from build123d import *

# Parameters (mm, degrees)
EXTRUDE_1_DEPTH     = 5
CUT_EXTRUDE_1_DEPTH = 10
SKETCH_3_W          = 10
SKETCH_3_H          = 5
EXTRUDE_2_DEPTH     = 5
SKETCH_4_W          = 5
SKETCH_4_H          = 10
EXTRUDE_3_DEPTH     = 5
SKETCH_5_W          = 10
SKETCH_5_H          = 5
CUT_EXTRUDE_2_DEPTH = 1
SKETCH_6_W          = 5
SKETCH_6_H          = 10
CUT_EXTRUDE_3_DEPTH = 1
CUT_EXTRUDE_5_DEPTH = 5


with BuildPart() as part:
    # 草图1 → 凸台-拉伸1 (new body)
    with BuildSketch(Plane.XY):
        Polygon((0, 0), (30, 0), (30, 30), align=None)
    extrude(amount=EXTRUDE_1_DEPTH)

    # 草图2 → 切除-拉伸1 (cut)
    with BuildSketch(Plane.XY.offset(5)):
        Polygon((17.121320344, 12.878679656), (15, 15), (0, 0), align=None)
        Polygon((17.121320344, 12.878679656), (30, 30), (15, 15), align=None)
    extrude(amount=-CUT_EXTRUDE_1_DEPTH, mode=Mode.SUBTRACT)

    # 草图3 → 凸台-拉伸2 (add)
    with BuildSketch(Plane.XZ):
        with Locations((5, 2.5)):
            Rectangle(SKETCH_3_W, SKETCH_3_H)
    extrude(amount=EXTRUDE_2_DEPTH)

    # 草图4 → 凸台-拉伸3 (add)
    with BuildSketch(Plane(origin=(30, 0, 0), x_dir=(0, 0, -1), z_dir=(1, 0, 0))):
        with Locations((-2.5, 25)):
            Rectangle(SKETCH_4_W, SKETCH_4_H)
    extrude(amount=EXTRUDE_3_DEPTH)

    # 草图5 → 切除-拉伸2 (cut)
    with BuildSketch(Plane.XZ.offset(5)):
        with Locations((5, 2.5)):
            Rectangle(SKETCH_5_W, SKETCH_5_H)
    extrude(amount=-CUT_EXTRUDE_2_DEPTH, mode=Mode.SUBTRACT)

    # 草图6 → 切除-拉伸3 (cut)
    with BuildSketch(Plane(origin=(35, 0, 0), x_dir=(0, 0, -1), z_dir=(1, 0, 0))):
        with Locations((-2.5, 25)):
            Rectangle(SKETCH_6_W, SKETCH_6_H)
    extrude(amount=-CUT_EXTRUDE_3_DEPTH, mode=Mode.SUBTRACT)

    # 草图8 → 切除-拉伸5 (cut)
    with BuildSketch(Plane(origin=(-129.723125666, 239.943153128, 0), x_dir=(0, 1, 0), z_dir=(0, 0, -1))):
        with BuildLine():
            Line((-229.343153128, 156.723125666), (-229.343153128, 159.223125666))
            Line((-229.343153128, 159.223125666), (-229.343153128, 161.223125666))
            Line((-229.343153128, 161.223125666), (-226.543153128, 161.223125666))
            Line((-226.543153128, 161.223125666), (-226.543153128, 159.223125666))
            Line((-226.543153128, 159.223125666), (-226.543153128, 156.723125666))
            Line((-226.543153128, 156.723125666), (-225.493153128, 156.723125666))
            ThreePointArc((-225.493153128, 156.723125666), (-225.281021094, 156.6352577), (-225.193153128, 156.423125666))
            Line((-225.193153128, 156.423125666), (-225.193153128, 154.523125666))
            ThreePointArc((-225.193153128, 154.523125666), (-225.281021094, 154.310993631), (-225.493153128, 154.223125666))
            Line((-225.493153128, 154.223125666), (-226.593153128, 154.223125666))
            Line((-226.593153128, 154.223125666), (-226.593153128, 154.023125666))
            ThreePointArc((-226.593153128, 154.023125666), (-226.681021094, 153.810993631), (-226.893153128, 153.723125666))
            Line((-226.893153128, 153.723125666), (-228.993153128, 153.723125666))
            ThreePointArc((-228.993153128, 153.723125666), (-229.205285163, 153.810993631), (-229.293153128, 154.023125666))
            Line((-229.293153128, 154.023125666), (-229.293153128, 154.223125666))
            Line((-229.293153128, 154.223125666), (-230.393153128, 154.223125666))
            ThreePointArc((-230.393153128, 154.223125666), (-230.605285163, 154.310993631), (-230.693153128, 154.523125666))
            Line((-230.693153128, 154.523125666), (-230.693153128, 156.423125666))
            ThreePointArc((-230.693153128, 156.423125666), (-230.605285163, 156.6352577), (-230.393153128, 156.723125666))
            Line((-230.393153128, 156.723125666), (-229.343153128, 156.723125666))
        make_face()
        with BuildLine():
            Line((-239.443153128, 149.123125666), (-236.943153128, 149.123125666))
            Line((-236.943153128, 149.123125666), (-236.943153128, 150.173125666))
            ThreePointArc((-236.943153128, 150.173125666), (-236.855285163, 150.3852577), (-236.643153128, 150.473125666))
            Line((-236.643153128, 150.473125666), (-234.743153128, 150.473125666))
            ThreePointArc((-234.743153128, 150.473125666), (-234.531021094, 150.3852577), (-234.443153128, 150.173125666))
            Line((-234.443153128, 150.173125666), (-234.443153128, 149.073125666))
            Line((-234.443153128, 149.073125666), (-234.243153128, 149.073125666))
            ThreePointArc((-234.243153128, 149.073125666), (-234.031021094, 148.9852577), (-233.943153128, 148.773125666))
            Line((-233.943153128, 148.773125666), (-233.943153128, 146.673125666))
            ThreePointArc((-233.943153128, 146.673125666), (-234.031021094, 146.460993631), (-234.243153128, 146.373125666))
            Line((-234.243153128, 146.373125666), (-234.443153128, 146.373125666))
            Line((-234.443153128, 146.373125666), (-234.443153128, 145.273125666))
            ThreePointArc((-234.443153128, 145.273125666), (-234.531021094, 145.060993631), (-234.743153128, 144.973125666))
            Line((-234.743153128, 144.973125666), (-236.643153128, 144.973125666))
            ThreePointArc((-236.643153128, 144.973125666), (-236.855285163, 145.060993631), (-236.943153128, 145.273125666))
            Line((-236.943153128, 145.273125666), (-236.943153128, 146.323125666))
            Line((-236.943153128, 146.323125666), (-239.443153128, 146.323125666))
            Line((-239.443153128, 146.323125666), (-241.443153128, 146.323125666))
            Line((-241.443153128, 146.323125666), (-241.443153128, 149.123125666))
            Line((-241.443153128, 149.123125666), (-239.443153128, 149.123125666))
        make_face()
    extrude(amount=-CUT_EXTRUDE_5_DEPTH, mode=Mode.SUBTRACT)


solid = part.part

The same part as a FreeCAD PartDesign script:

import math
import FreeCAD as App
import Part
import Sketcher
from FreeCAD import Vector
Q = App.Units.Quantity

doc = App.newDocument("Part")
body = doc.addObject("PartDesign::Body", "Body")

# Sketch on XY plane
sketch1 = doc.addObject("Sketcher::SketchObject", "Sketch")
body.addObject(sketch1)
sketch1.AttachmentSupport = (doc.XY_Plane, [""])
sketch1.MapMode = "FlatFace"
sketch1.addGeometry([
    Part.LineSegment(Vector(0, 0, 0), Vector(30, 0, 0)),
    Part.LineSegment(Vector(30, 0, 0), Vector(30, 30, 0)),
    Part.LineSegment(Vector(30, 30, 0), Vector(0, 0, 0)),
], False)
sketch1.addConstraint([
    Sketcher.Constraint("Coincident", 0, 2, 1, 1),
    Sketcher.Constraint("Coincident", 1, 2, 2, 1),
    Sketcher.Constraint("Coincident", 2, 2, 0, 1),
    Sketcher.Constraint("Horizontal", 0),
    Sketcher.Constraint("Vertical", 1),
    Sketcher.Constraint("Coincident", 2, 2, -1, 1),
    Sketcher.Constraint("Equal", 0, 1),
    Sketcher.Constraint("DistanceX", 0, 1, 0, 2, 30.0),
])
pad1 = doc.addObject("PartDesign::Pad", "Pad")
body.addObject(pad1)
pad1.Profile = sketch1
pad1.Length = 5

# Sketch on XY plane
sketch2 = doc.addObject("Sketcher::SketchObject", "Sketch001")
body.addObject(sketch2)
sketch2.AttachmentSupport = (doc.XY_Plane, [""])
sketch2.MapMode = "FlatFace"
sketch2.AttachmentOffset = App.Placement(Vector(0, 0, 5), App.Rotation())
sketch2.addGeometry([
    Part.LineSegment(Vector(0, 0, 0), Vector(17, 13, 0)),
    Part.LineSegment(Vector(17, 13, 0), Vector(30, 30, 0)),
    Part.LineSegment(Vector(30, 30, 0), Vector(0, 0, 0)),
], False)
sketch2.addConstraint([
    Sketcher.Constraint("Coincident", 0, 2, 1, 1),
    Sketcher.Constraint("Coincident", 1, 2, 2, 1),
    Sketcher.Constraint("Coincident", 2, 2, 0, 1),
    Sketcher.Constraint("Coincident", 2, 2, -1, 1),
    Sketcher.Constraint("Equal", 0, 1),
    Sketcher.Constraint("Angle", 2, Q("-135 deg")),
    Sketcher.Constraint("DistanceX", -1, 1, 1, 2, 30.0),
    Sketcher.Constraint("DistanceX", -1, 1, 0, 2, 17.12132),
])
pocket1 = doc.addObject("PartDesign::Pocket", "Pocket")
body.addObject(pocket1)
pocket1.Profile = sketch2
pocket1.Length = 10

# Sketch on XZ plane
sketch3 = doc.addObject("Sketcher::SketchObject", "Sketch002")
body.addObject(sketch3)
sketch3.AttachmentSupport = (doc.XZ_Plane, [""])
sketch3.MapMode = "FlatFace"
sketch3.addGeometry([
    Part.LineSegment(Vector(0, 5, 0), Vector(0, 0, 0)),
    Part.LineSegment(Vector(0, 0, 0), Vector(10, 0, 0)),
    Part.LineSegment(Vector(10, 0, 0), Vector(10, 5, 0)),
    Part.LineSegment(Vector(10, 5, 0), Vector(0, 5, 0)),
], False)
sketch3.addConstraint([
    Sketcher.Constraint("Coincident", 0, 2, 1, 1),
    Sketcher.Constraint("Coincident", 1, 2, 2, 1),
    Sketcher.Constraint("Coincident", 2, 2, 3, 1),
    Sketcher.Constraint("Coincident", 3, 2, 0, 1),
    Sketcher.Constraint("Vertical", 0),
    Sketcher.Constraint("Horizontal", 1),
    Sketcher.Constraint("Vertical", 2),
    Sketcher.Constraint("Horizontal", 3),
    Sketcher.Constraint("Coincident", 0, 2, -1, 1),
    Sketcher.Constraint("DistanceX", 1, 1, 1, 2, 10.0),
    Sketcher.Constraint("DistanceY", 0, 2, 0, 1, 5.0),
])
pad2 = doc.addObject("PartDesign::Pad", "Pad001")
body.addObject(pad2)
pad2.Profile = sketch3
pad2.Length = 5

# Sketch on YZ plane
sketch4 = doc.addObject("Sketcher::SketchObject", "Sketch003")
body.addObject(sketch4)
sketch4.AttachmentSupport = (doc.YZ_Plane, [""])
sketch4.MapMode = "FlatFace"
sketch4.AttachmentOffset = App.Placement(Vector(0, 0, 30), App.Rotation())
sketch4.addGeometry([
    Part.LineSegment(Vector(30, 5, 0), Vector(20, 5, 0)),
    Part.LineSegment(Vector(20, 5, 0), Vector(20, 0, 0)),
    Part.LineSegment(Vector(20, 0, 0), Vector(30, 0, 0)),
    Part.LineSegment(Vector(30, 0, 0), Vector(30, 5, 0)),
], False)
sketch4.addConstraint([
    Sketcher.Constraint("Coincident", 0, 2, 1, 1),
    Sketcher.Constraint("Coincident", 1, 2, 2, 1),
    Sketcher.Constraint("Coincident", 2, 2, 3, 1),
    Sketcher.Constraint("Coincident", 3, 2, 0, 1),
    Sketcher.Constraint("Horizontal", 0),
    Sketcher.Constraint("Vertical", 1),
    Sketcher.Constraint("Horizontal", 2),
    Sketcher.Constraint("Vertical", 3),
    Sketcher.Constraint("PointOnObject", 1, 2, -1),
    Sketcher.Constraint("DistanceX", 0, 2, 0, 1, 10.0),
    Sketcher.Constraint("DistanceY", 1, 2, 1, 1, 5.0),
    Sketcher.Constraint("DistanceX", -1, 1, 0, 2, 20.0),
])
pad3 = doc.addObject("PartDesign::Pad", "Pad002")
body.addObject(pad3)
pad3.Profile = sketch4
pad3.Length = 5

# Sketch on XZ plane
sketch5 = doc.addObject("Sketcher::SketchObject", "Sketch004")
body.addObject(sketch5)
sketch5.AttachmentSupport = (doc.XZ_Plane, [""])
sketch5.MapMode = "FlatFace"
sketch5.AttachmentOffset = App.Placement(Vector(0, 0, 5), App.Rotation())
sketch5.addGeometry([
    Part.LineSegment(Vector(0, 5, 0), Vector(0, 0, 0)),
    Part.LineSegment(Vector(0, 0, 0), Vector(10, 0, 0)),
    Part.LineSegment(Vector(10, 0, 0), Vector(10, 5, 0)),
    Part.LineSegment(Vector(10, 5, 0), Vector(0, 5, 0)),
], False)
sketch5.addConstraint([
    Sketcher.Constraint("Coincident", 0, 2, 1, 1),
    Sketcher.Constraint("Coincident", 1, 2, 2, 1),
    Sketcher.Constraint("Coincident", 2, 2, 3, 1),
    Sketcher.Constraint("Coincident", 3, 2, 0, 1),
    Sketcher.Constraint("Vertical", 0),
    Sketcher.Constraint("Horizontal", 1),
    Sketcher.Constraint("Vertical", 2),
    Sketcher.Constraint("Horizontal", 3),
    Sketcher.Constraint("Coincident", 0, 2, -1, 1),
    Sketcher.Constraint("DistanceX", 1, 1, 1, 2, 10.0),
    Sketcher.Constraint("DistanceY", 0, 2, 0, 1, 5.0),
])
pocket2 = doc.addObject("PartDesign::Pocket", "Pocket001")
body.addObject(pocket2)
pocket2.Profile = sketch5
pocket2.Length = 1

# Sketch on YZ plane
sketch6 = doc.addObject("Sketcher::SketchObject", "Sketch005")
body.addObject(sketch6)
sketch6.AttachmentSupport = (doc.YZ_Plane, [""])
sketch6.MapMode = "FlatFace"
sketch6.AttachmentOffset = App.Placement(Vector(0, 0, 35), App.Rotation())
sketch6.addGeometry([
    Part.LineSegment(Vector(30, 5, 0), Vector(20, 5, 0)),
    Part.LineSegment(Vector(20, 5, 0), Vector(20, 0, 0)),
    Part.LineSegment(Vector(20, 0, 0), Vector(30, 0, 0)),
    Part.LineSegment(Vector(30, 0, 0), Vector(30, 5, 0)),
], False)
sketch6.addConstraint([
    Sketcher.Constraint("Coincident", 0, 2, 1, 1),
    Sketcher.Constraint("Coincident", 1, 2, 2, 1),
    Sketcher.Constraint("Coincident", 2, 2, 3, 1),
    Sketcher.Constraint("Coincident", 3, 2, 0, 1),
    Sketcher.Constraint("Horizontal", 0),
    Sketcher.Constraint("Vertical", 1),
    Sketcher.Constraint("Horizontal", 2),
    Sketcher.Constraint("Vertical", 3),
    Sketcher.Constraint("PointOnObject", 1, 2, -1),
    Sketcher.Constraint("DistanceX", 0, 2, 0, 1, 10.0),
    Sketcher.Constraint("DistanceY", 1, 2, 1, 1, 5.0),
    Sketcher.Constraint("DistanceX", -1, 1, 0, 2, 20.0),
])
pocket3 = doc.addObject("PartDesign::Pocket", "Pocket002")
body.addObject(pocket3)
pocket3.Profile = sketch6
pocket3.Length = 1

# Sketch on XY plane
sketch7 = doc.addObject("Sketcher::SketchObject", "Sketch006")
body.addObject(sketch7)
sketch7.AttachmentSupport = (doc.XY_Plane, [""])
sketch7.MapMode = "FlatFace"
sketch7.addGeometry([
    Part.LineSegment(Vector(31.5, 10.6, 0), Vector(27, 10.6, 0)),  # 0
    Part.LineSegment(Vector(27, 10.6, 0), Vector(27, 9.55, 0)),  # 1
    Part.ArcOfCircle(Part.Circle(Vector(26.7, 9.55, 0), Vector(0, 0, 1), 0.3), math.radians(-90), math.radians(0)),  # 2
    Part.LineSegment(Vector(26.7, 9.25, 0), Vector(24.8, 9.25, 0)),  # 3
    Part.ArcOfCircle(Part.Circle(Vector(24.8, 9.55, 0), Vector(0, 0, 1), 0.3), math.radians(180), math.radians(270)),  # 4
    Part.LineSegment(Vector(24.5, 9.55, 0), Vector(24.5, 10.65, 0)),  # 5
    Part.LineSegment(Vector(24.5, 10.65, 0), Vector(24.3, 10.65, 0)),  # 6
    Part.ArcOfCircle(Part.Circle(Vector(24.3, 10.95, 0), Vector(0, 0, 1), 0.3), math.radians(180), math.radians(270)),  # 7
    Part.LineSegment(Vector(24, 10.95, 0), Vector(24, 13.05, 0)),  # 8
    Part.ArcOfCircle(Part.Circle(Vector(24.3, 13.05, 0), Vector(0, 0, 1), 0.3), math.radians(90), math.radians(180)),  # 9
    Part.LineSegment(Vector(24.3, 13.35, 0), Vector(24.5, 13.35, 0)),  # 10
    Part.LineSegment(Vector(24.5, 13.35, 0), Vector(24.5, 14.45, 0)),  # 11
    Part.ArcOfCircle(Part.Circle(Vector(24.8, 14.45, 0), Vector(0, 0, 1), 0.3), math.radians(90), math.radians(180)),  # 12
    Part.LineSegment(Vector(24.8, 14.75, 0), Vector(26.7, 14.75, 0)),  # 13
    Part.ArcOfCircle(Part.Circle(Vector(26.7, 14.45, 0), Vector(0, 0, 1), 0.3), math.radians(0), math.radians(90)),  # 14
    Part.LineSegment(Vector(27, 14.45, 0), Vector(27, 13.4, 0)),  # 15
    Part.LineSegment(Vector(27, 13.4, 0), Vector(31.5, 13.4, 0)),  # 16
    Part.LineSegment(Vector(31.5, 13.4, 0), Vector(31.5, 10.6, 0)),  # 17
    Part.LineSegment(Vector(20.45, 3, 0), Vector(19.4, 3, 0)),  # 18
    Part.LineSegment(Vector(19.4, 3, 0), Vector(19.4, -1.5, 0)),  # 19
    Part.LineSegment(Vector(19.4, -1.5, 0), Vector(16.6, -1.5, 0)),  # 20
    Part.LineSegment(Vector(16.6, -1.5, 0), Vector(16.6, 3, 0)),  # 21
    Part.LineSegment(Vector(16.6, 3, 0), Vector(15.55, 3, 0)),  # 22
    Part.ArcOfCircle(Part.Circle(Vector(15.55, 3.3, 0), Vector(0, 0, 1), 0.3), math.radians(180), math.radians(270)),  # 23
    Part.LineSegment(Vector(15.25, 3.3, 0), Vector(15.25, 5.2, 0)),  # 24
    Part.ArcOfCircle(Part.Circle(Vector(15.55, 5.2, 0), Vector(0, 0, 1), 0.3), math.radians(90), math.radians(180)),  # 25
    Part.LineSegment(Vector(15.55, 5.5, 0), Vector(16.65, 5.5, 0)),  # 26
    Part.LineSegment(Vector(16.65, 5.5, 0), Vector(16.65, 5.7, 0)),  # 27
    Part.ArcOfCircle(Part.Circle(Vector(16.95, 5.7, 0), Vector(0, 0, 1), 0.3), math.radians(90), math.radians(180)),  # 28
    Part.LineSegment(Vector(16.95, 6, 0), Vector(19.05, 6, 0)),  # 29
    Part.ArcOfCircle(Part.Circle(Vector(19.05, 5.7, 0), Vector(0, 0, 1), 0.3), math.radians(0), math.radians(90)),  # 30
    Part.LineSegment(Vector(19.35, 5.7, 0), Vector(19.35, 5.5, 0)),  # 31
    Part.LineSegment(Vector(19.35, 5.5, 0), Vector(20.45, 5.5, 0)),  # 32
    Part.ArcOfCircle(Part.Circle(Vector(20.45, 5.2, 0), Vector(0, 0, 1), 0.3), math.radians(0), math.radians(90)),  # 33
    Part.LineSegment(Vector(20.75, 5.2, 0), Vector(20.75, 3.3, 0)),  # 34
    Part.ArcOfCircle(Part.Circle(Vector(20.45, 3.3, 0), Vector(0, 0, 1), 0.3), math.radians(-90), math.radians(0)),  # 35
], False)
sketch7.addConstraint([
    Sketcher.Constraint("Coincident", 0, 2, 1, 1),
    Sketcher.Constraint("Tangent", 1, 2, 2, 2),
    Sketcher.Constraint("Tangent", 2, 1, 3, 1),
    Sketcher.Constraint("Tangent", 3, 2, 4, 2),
    Sketcher.Constraint("Tangent", 4, 1, 5, 1),
    Sketcher.Constraint("Coincident", 5, 2, 6, 1),
    Sketcher.Constraint("Tangent", 6, 2, 7, 2),
    Sketcher.Constraint("Tangent", 7, 1, 8, 1),
    Sketcher.Constraint("Tangent", 8, 2, 9, 2),
    Sketcher.Constraint("Tangent", 9, 1, 10, 1),
    Sketcher.Constraint("Coincident", 10, 2, 11, 1),
    Sketcher.Constraint("Tangent", 11, 2, 12, 2),
    Sketcher.Constraint("Tangent", 12, 1, 13, 1),
    Sketcher.Constraint("Tangent", 13, 2, 14, 2),
    Sketcher.Constraint("Tangent", 14, 1, 15, 1),
    Sketcher.Constraint("Coincident", 15, 2, 16, 1),
    Sketcher.Constraint("Coincident", 16, 2, 17, 1),
    Sketcher.Constraint("Coincident", 17, 2, 0, 1),
    Sketcher.Constraint("Coincident", 18, 2, 19, 1),
    Sketcher.Constraint("Coincident", 19, 2, 20, 1),
    Sketcher.Constraint("Coincident", 20, 2, 21, 1),
    Sketcher.Constraint("Coincident", 21, 2, 22, 1),
    Sketcher.Constraint("Tangent", 22, 2, 23, 2),
    Sketcher.Constraint("Tangent", 23, 1, 24, 1),
    Sketcher.Constraint("Tangent", 24, 2, 25, 2),
    Sketcher.Constraint("Tangent", 25, 1, 26, 1),
    Sketcher.Constraint("Coincident", 26, 2, 27, 1),
    Sketcher.Constraint("Tangent", 27, 2, 28, 2),
    Sketcher.Constraint("Tangent", 28, 1, 29, 1),
    Sketcher.Constraint("Tangent", 29, 2, 30, 2),
    Sketcher.Constraint("Tangent", 30, 1, 31, 1),
    Sketcher.Constraint("Coincident", 31, 2, 32, 1),
    Sketcher.Constraint("Tangent", 32, 2, 33, 2),
    Sketcher.Constraint("Tangent", 33, 1, 34, 1),
    Sketcher.Constraint("Tangent", 34, 2, 35, 2),
    Sketcher.Constraint("Tangent", 35, 1, 18, 1),
    Sketcher.Constraint("Horizontal", 0),
    Sketcher.Constraint("Vertical", 1),
    Sketcher.Constraint("Horizontal", 3),
    Sketcher.Constraint("Vertical", 5),
    Sketcher.Constraint("Horizontal", 6),
    Sketcher.Constraint("Vertical", 8),
    Sketcher.Constraint("Horizontal", 10),
    Sketcher.Constraint("Vertical", 11),
    Sketcher.Constraint("Horizontal", 13),
    Sketcher.Constraint("Vertical", 15),
    Sketcher.Constraint("Horizontal", 16),
    Sketcher.Constraint("Vertical", 17),
    Sketcher.Constraint("Horizontal", 18),
    Sketcher.Constraint("Vertical", 19),
    Sketcher.Constraint("Horizontal", 20),
    Sketcher.Constraint("Vertical", 21),
    Sketcher.Constraint("Horizontal", 22),
    Sketcher.Constraint("Vertical", 24),
    Sketcher.Constraint("Horizontal", 26),
    Sketcher.Constraint("Vertical", 27),
    Sketcher.Constraint("Horizontal", 29),
    Sketcher.Constraint("Vertical", 31),
    Sketcher.Constraint("Horizontal", 32),
    Sketcher.Constraint("Vertical", 34),
    Sketcher.Constraint("Equal", 2, 4),
    Sketcher.Constraint("Equal", 4, 7),
    Sketcher.Constraint("Equal", 7, 9),
    Sketcher.Constraint("Equal", 9, 12),
    Sketcher.Constraint("Equal", 12, 14),
    Sketcher.Constraint("Equal", 14, 23),
    Sketcher.Constraint("Equal", 23, 25),
    Sketcher.Constraint("Equal", 25, 28),
    Sketcher.Constraint("Equal", 28, 30),
    Sketcher.Constraint("Equal", 30, 33),
    Sketcher.Constraint("Equal", 33, 35),
    Sketcher.Constraint("Horizontal", 25, 3, 33, 3),
    Sketcher.Constraint("Horizontal", 23, 3, 35, 3),
    Sketcher.Constraint("Vertical", 4, 3, 12, 3),
    Sketcher.Constraint("Vertical", 2, 3, 14, 3),
    Sketcher.Constraint("Equal", 18, 22),
    Sketcher.Constraint("Equal", 26, 32),
    Sketcher.Constraint("Equal", 22, 1),
    Sketcher.Constraint("Equal", 32, 5),
    Sketcher.Constraint("Equal", 29, 8),
    Sketcher.Constraint("Equal", 5, 11),
    Sketcher.Constraint("Equal", 1, 15),
    Sketcher.Constraint("Equal", 16, 19),
    Sketcher.Constraint("Equal", 13, 24),
    Sketcher.Constraint("Equal", 10, 27),
    Sketcher.Constraint("Radius", 2, 0.3),
    Sketcher.Constraint("DistanceX", 0, 2, 0, 1, 4.5),
    Sketcher.Constraint("DistanceX", 3, 2, 3, 1, 1.9),
    Sketcher.Constraint("DistanceX", 6, 2, 6, 1, 0.2),
    Sketcher.Constraint("DistanceX", 20, 2, 20, 1, 2.8),
    Sketcher.Constraint("DistanceX", 26, 1, 26, 2, 1.1),
    Sketcher.Constraint("DistanceX", 29, 1, 29, 2, 2.1),
    Sketcher.Constraint("DistanceX", -1, 1, 0, 2, 27.0),
    Sketcher.Constraint("DistanceY", -1, 1, 18, 2, 3.0),
    Sketcher.Constraint("DistanceY", -1, 1, 0, 2, 10.6),
    Sketcher.Constraint("DistanceX", -1, 1, 18, 2, 19.4),
])
pocket4 = doc.addObject("PartDesign::Pocket", "Pocket003")
body.addObject(pocket4)
pocket4.Profile = sketch7
pocket4.Length = 5
pocket4.Reversed = True

doc.recompute()
